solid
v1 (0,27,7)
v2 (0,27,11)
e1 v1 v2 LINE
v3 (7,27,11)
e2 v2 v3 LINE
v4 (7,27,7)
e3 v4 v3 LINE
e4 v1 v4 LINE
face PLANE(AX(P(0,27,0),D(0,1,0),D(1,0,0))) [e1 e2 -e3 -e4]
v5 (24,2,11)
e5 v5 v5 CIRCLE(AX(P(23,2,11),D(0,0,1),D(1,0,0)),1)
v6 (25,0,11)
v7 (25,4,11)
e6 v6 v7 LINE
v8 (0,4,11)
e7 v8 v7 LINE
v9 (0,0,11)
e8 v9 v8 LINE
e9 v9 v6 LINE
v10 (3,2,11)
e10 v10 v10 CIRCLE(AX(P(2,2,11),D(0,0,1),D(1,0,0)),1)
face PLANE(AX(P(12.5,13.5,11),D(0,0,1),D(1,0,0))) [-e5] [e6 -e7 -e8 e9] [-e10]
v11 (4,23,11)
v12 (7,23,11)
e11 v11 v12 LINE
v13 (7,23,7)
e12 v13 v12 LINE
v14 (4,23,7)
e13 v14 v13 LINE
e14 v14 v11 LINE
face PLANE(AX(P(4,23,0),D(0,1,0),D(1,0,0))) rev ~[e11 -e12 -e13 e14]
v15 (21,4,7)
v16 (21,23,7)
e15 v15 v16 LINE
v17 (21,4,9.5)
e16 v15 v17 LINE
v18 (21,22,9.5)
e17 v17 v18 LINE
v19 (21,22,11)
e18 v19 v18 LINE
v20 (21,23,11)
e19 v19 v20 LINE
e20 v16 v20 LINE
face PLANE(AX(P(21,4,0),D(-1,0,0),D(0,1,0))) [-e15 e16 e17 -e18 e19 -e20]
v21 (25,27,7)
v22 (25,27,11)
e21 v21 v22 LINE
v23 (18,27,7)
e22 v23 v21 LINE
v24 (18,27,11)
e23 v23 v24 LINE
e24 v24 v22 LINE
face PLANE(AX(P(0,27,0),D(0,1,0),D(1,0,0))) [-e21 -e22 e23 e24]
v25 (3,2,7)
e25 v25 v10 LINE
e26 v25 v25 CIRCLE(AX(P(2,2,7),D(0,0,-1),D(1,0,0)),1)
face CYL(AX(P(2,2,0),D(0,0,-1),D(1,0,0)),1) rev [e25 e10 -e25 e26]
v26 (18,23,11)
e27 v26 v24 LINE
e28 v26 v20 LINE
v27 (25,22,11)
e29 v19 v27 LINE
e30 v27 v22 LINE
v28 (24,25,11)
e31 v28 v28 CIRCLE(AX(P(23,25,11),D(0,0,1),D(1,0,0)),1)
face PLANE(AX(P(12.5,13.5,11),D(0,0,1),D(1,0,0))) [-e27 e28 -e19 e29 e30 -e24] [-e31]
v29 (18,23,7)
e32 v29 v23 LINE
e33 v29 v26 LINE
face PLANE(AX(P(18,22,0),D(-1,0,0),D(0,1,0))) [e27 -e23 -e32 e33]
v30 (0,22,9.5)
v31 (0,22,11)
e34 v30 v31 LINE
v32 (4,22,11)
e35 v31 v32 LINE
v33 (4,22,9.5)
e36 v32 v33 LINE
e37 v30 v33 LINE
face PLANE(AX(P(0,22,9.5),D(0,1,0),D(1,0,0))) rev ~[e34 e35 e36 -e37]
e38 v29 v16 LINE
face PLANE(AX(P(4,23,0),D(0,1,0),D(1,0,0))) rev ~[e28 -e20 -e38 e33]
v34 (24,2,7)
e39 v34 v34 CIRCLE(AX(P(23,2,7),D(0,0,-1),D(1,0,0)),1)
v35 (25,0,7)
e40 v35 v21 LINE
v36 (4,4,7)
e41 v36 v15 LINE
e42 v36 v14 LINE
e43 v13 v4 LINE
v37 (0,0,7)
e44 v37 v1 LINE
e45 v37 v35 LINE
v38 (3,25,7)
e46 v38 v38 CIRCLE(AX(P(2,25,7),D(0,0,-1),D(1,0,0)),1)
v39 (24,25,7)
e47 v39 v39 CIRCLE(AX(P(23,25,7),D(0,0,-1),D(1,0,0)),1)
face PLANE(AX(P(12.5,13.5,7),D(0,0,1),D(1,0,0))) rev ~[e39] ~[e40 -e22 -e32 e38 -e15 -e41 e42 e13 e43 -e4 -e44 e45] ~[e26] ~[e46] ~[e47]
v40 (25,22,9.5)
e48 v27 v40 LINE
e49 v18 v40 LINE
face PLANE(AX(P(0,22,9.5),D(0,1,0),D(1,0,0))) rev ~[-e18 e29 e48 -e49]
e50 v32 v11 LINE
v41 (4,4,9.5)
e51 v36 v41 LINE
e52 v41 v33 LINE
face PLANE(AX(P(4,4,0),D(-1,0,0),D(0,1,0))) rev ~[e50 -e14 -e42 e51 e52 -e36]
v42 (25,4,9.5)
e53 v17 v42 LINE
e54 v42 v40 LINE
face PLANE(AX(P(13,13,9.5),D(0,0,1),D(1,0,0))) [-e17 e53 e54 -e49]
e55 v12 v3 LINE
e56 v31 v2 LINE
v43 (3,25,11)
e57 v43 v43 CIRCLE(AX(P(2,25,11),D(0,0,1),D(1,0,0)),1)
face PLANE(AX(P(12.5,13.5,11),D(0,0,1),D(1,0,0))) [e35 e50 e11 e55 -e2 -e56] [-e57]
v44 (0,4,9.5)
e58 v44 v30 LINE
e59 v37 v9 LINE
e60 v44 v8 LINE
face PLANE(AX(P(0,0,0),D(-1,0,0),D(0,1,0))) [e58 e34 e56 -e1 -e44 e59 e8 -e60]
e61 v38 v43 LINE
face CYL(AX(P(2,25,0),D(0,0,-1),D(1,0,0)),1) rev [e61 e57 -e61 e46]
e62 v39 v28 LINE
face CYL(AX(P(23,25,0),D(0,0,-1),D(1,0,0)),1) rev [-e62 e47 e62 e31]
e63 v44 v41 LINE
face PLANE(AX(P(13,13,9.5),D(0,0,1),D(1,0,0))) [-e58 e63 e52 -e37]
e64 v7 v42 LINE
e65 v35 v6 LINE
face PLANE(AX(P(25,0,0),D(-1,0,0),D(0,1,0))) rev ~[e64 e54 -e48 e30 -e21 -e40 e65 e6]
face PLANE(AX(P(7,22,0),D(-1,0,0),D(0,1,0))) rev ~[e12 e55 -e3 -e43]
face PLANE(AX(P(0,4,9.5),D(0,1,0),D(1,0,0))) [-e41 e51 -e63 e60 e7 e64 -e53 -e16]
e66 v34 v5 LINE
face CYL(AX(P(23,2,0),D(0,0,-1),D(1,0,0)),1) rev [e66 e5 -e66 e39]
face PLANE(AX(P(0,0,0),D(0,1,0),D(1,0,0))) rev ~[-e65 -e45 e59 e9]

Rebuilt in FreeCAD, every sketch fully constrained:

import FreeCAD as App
import Part
import Sketcher

doc = App.newDocument("Part")
body = doc.addObject("PartDesign::Body", "Body")

# Sketch on XY plane
sketch1 = body.newObject("Sketcher::SketchObject", "Sketch")
sketch1.AttachmentSupport = (doc.getObject("XY_Plane"), [""])
sketch1.MapMode = "FlatFace"
sketch1.addGeometry([
    Part.LineSegment(App.Vector(0, 27, 0), App.Vector(0, 0, 0)),
    Part.LineSegment(App.Vector(0, 0, 0), App.Vector(25, 0, 0)),
    Part.LineSegment(App.Vector(25, 0, 0), App.Vector(25, 27, 0)),
    Part.LineSegment(App.Vector(25, 27, 0), App.Vector(0, 27, 0)),
], False)
sketch1.addConstraint([
    Sketcher.Constraint("Coincident", 0, 2, 1, 1),
    Sketcher.Constraint("Coincident", 1, 2, 2, 1),
    Sketcher.Constraint("Coincident", 2, 2, 3, 1),
    Sketcher.Constraint("Coincident", 3, 2, 0, 1),
    Sketcher.Constraint("Vertical", 0),
    Sketcher.Constraint("Horizontal", 1),
    Sketcher.Constraint("Vertical", 2),
    Sketcher.Constraint("Horizontal", 3),
    Sketcher.Constraint("Coincident", 0, 2, -1, 1),
    Sketcher.Constraint("DistanceX", 1, 1, 1, 2, 25.0),
    Sketcher.Constraint("DistanceY", 0, 2, 0, 1, 27.0),
])
pad1 = body.newObject("PartDesign::Pad", "Pad")
pad1.Profile = sketch1
pad1.Length = 7
body2 = doc.addObject("PartDesign::Body", "Body001")

# Sketch on XY plane
sketch2 = body2.newObject("Sketcher::SketchObject", "Sketch001")
sketch2.AttachmentSupport = (doc.getObject("XY_Plane001"), [""])
sketch2.MapMode = "FlatFace"
sketch2.AttachmentOffset = App.Placement(App.Vector(0, 0, 9.5), App.Rotation())
sketch2.addGeometry([
    Part.LineSegment(App.Vector(0, 22, 0), App.Vector(0, 4, 0)),
    Part.LineSegment(App.Vector(0, 4, 0), App.Vector(26, 4, 0)),
    Part.LineSegment(App.Vector(26, 4, 0), App.Vector(26, 22, 0)),
    Part.LineSegment(App.Vector(26, 22, 0), App.Vector(0, 22, 0)),
], False)
sketch2.addConstraint([
    Sketcher.Constraint("Coincident", 0, 2, 1, 1),
    Sketcher.Constraint("Coincident", 1, 2, 2, 1),
    Sketcher.Constraint("Coincident", 2, 2, 3, 1),
    Sketcher.Constraint("Coincident", 3, 2, 0, 1),
    Sketcher.Constraint("Vertical", 0),
    Sketcher.Constraint("Horizontal", 1),
    Sketcher.Constraint("Vertical", 2),
    Sketcher.Constraint("Horizontal", 3),
    Sketcher.Constraint("PointOnObject", 0, 2, -2),
    Sketcher.Constraint("DistanceX", 1, 1, 1, 2, 26.0),
    Sketcher.Constraint("DistanceY", 0, 2, 0, 1, 18.0),
    Sketcher.Constraint("DistanceY", -1, 1, 0, 2, 4.0),
])
pad2 = body2.newObject("PartDesign::Pad", "Pad001")
pad2.Profile = sketch2
pad2.Length = 1.5
body3 = doc.addObject("PartDesign::Body", "Body002")

# Sketch on XY plane
sketch3 = body3.newObject("Sketcher::SketchObject", "Sketch002")
sketch3.AttachmentSupport = (doc.getObject("XY_Plane002"), [""])
sketch3.MapMode = "FlatFace"
sketch3.addGeometry([
    Part.LineSegment(App.Vector(7, 27, 0), App.Vector(7, 22, 0)),
    Part.LineSegment(App.Vector(7, 22, 0), App.Vector(18, 22, 0)),
    Part.LineSegment(App.Vector(18, 22, 0), App.Vector(18, 27, 0)),
    Part.LineSegment(App.Vector(18, 27, 0), App.Vector(7, 27, 0)),
], False)
sketch3.addConstraint([
    Sketcher.Constraint("Coincident", 0, 2, 1, 1),
    Sketcher.Constraint("Coincident", 1, 2, 2, 1),
    Sketcher.Constraint("Coincident", 2, 2, 3, 1),
    Sketcher.Constraint("Coincident", 3, 2, 0, 1),
    Sketcher.Constraint("Vertical", 0),
    Sketcher.Constraint("Horizontal", 1),
    Sketcher.Constraint("Vertical", 2),
    Sketcher.Constraint("Horizontal", 3),
    Sketcher.Constraint("DistanceX", 1, 1, 1, 2, 11.0),
    Sketcher.Constraint("DistanceY", 0, 2, 0, 1, 5.0),
    Sketcher.Constraint("DistanceX", -1, 1, 0, 2, 7.0),
    Sketcher.Constraint("DistanceY", -1, 1, 0, 2, 22.0),
])
pad3 = body3.newObject("PartDesign::Pad", "Pad002")
pad3.Profile = sketch3
pad3.Length = 11
body4 = doc.addObject("PartDesign::Body", "Body003")

# Sketch on XY plane
sketch4 = body4.newObject("Sketcher::SketchObject", "Sketch003")
sketch4.AttachmentSupport = (doc.getObject("XY_Plane003"), [""])
sketch4.MapMode = "FlatFace"
sketch4.addGeometry(Part.Circle(App.Vector(2, 2, 0), App.Vector(0, 0, 1), 1), False)
sketch4.addConstraint([
    Sketcher.Constraint("Diameter", 0, 2.0),
    Sketcher.Constraint("DistanceX", -1, 1, 0, 3, 2.0),
    Sketcher.Constraint("DistanceY", -1, 1, 0, 3, 2.0),
])
pad4 = body4.newObject("PartDesign::Pad", "Pad003")
pad4.Profile = sketch4
pad4.Length = 11
body5 = doc.addObject("PartDesign::Body", "Body004")

# Sketch on XY plane
sketch5 = body5.newObject("Sketcher::SketchObject", "Sketch004")
sketch5.AttachmentSupport = (doc.getObject("XY_Plane004"), [""])
sketch5.MapMode = "FlatFace"
sketch5.addGeometry(Part.Circle(App.Vector(23, 2, 0), App.Vector(0, 0, 1), 1), False)
sketch5.addConstraint([
    Sketcher.Constraint("Diameter", 0, 2.0),
    Sketcher.Constraint("DistanceX", -1, 1, 0, 3, 23.0),
    Sketcher.Constraint("DistanceY", -1, 1, 0, 3, 2.0),
])
pad5 = body5.newObject("PartDesign::Pad", "Pad004")
pad5.Profile = sketch5
pad5.Length = 11
body6 = doc.addObject("PartDesign::Body", "Body005")

# Sketch on XY plane
sketch6 = body6.newObject("Sketcher::SketchObject", "Sketch005")
sketch6.AttachmentSupport = (doc.getObject("XY_Plane005"), [""])
sketch6.MapMode = "FlatFace"
sketch6.addGeometry(Part.Circle(App.Vector(23, 25, 0), App.Vector(0, 0, 1), 1), False)
sketch6.addConstraint([
    Sketcher.Constraint("Diameter", 0, 2.0),
    Sketcher.Constraint("DistanceX", -1, 1, 0, 3, 23.0),
    Sketcher.Constraint("DistanceY", -1, 1, 0, 3, 25.0),
])
pad6 = body6.newObject("PartDesign::Pad", "Pad005")
pad6.Profile = sketch6
pad6.Length = 11
body7 = doc.addObject("PartDesign::Body", "Body006")

# Sketch on XY plane
sketch7 = body7.newObject("Sketcher::SketchObject", "Sketch006")
sketch7.AttachmentSupport = (doc.getObject("XY_Plane006"), [""])
sketch7.MapMode = "FlatFace"
sketch7.addGeometry(Part.Circle(App.Vector(2, 25, 0), App.Vector(0, 0, 1), 1), False)
sketch7.addConstraint([
    Sketcher.Constraint("Diameter", 0, 2.0),
    Sketcher.Constraint("DistanceX", -1, 1, 0, 3, 2.0),
    Sketcher.Constraint("DistanceY", -1, 1, 0, 3, 25.0),
])
pad7 = body7.newObject("PartDesign::Pad", "Pad006")
pad7.Profile = sketch7
pad7.Length = 11
body8 = doc.addObject("PartDesign::Body", "Body007")

# Sketch on XY plane
sketch8 = body8.newObject("Sketcher::SketchObject", "Sketch007")
sketch8.AttachmentSupport = (doc.getObject("XY_Plane007"), [""])
sketch8.MapMode = "FlatFace"
sketch8.addGeometry([
    Part.LineSegment(App.Vector(4, 23, 0), App.Vector(4, 4, 0)),
    Part.LineSegment(App.Vector(4, 4, 0), App.Vector(21, 4, 0)),
    Part.LineSegment(App.Vector(21, 4, 0), App.Vector(21, 23, 0)),
    Part.LineSegment(App.Vector(21, 23, 0), App.Vector(4, 23, 0)),
], False)
sketch8.addConstraint([
    Sketcher.Constraint("Coincident", 0, 2, 1, 1),
    Sketcher.Constraint("Coincident", 1, 2, 2, 1),
    Sketcher.Constraint("Coincident", 2, 2, 3, 1),
    Sketcher.Constraint("Coincident", 3, 2, 0, 1),
    Sketcher.Constraint("Vertical", 0),
    Sketcher.Constraint("Horizontal", 1),
    Sketcher.Constraint("Vertical", 2),
    Sketcher.Constraint("Horizontal", 3),
    Sketcher.Constraint("DistanceX", 1, 1, 1, 2, 17.0),
    Sketcher.Constraint("DistanceY", 0, 2, 0, 1, 19.0),
    Sketcher.Constraint("DistanceX", -1, 1, 0, 2, 4.0),
    Sketcher.Constraint("DistanceY", -1, 1, 0, 2, 4.0),
])
pad8 = body8.newObject("PartDesign::Pad", "Pad007")
pad8.Profile = sketch8
pad8.Length = 11
body9 = doc.addObject("PartDesign::Body", "Body008")

# Sketch on XY plane
sketch9 = body9.newObject("Sketcher::SketchObject", "Sketch008")
sketch9.AttachmentSupport = (doc.getObject("XY_Plane008"), [""])
sketch9.MapMode = "FlatFace"
sketch9.addGeometry([
    Part.LineSegment(App.Vector(0, 27, 0), App.Vector(0, 0, 0)),
    Part.LineSegment(App.Vector(0, 0, 0), App.Vector(25, 0, 0)),
    Part.LineSegment(App.Vector(25, 0, 0), App.Vector(25, 27, 0)),
    Part.LineSegment(App.Vector(25, 27, 0), App.Vector(0, 27, 0)),
], False)
sketch9.addConstraint([
    Sketcher.Constraint("Coincident", 0, 2, 1, 1),
    Sketcher.Constraint("Coincident", 1, 2, 2, 1),
    Sketcher.Constraint("Coincident", 2, 2, 3, 1),
    Sketcher.Constraint("Coincident", 3, 2, 0, 1),
    Sketcher.Constraint("Vertical", 0),
    Sketcher.Constraint("Horizontal", 1),
    Sketcher.Constraint("Vertical", 2),
    Sketcher.Constraint("Horizontal", 3),
    Sketcher.Constraint("Coincident", 0, 2, -1, 1),
    Sketcher.Constraint("DistanceX", 1, 1, 1, 2, 25.0),
    Sketcher.Constraint("DistanceY", 0, 2, 0, 1, 27.0),
])
pad9 = body9.newObject("PartDesign::Pad", "Pad008")
pad9.Profile = sketch9
pad9.Length = 11
doc.recompute()

boolean = body9.newObject("PartDesign::Boolean", "Boolean")
boolean.Type = "Cut"
boolean.addObjects([body8])
doc.recompute()

boolean2 = body9.newObject("PartDesign::Boolean", "Boolean001")
boolean2.Type = "Cut"
boolean2.addObjects([body7])
doc.recompute()

boolean3 = body9.newObject("PartDesign::Boolean", "Boolean002")
boolean3.Type = "Cut"
boolean3.addObjects([body6])
doc.recompute()

boolean4 = body9.newObject("PartDesign::Boolean", "Boolean003")
boolean4.Type = "Cut"
boolean4.addObjects([body5])
doc.recompute()

boolean5 = body9.newObject("PartDesign::Boolean", "Boolean004")
boolean5.Type = "Cut"
boolean5.addObjects([body4])
doc.recompute()

boolean6 = body9.newObject("PartDesign::Boolean", "Boolean005")
boolean6.Type = "Cut"
boolean6.addObjects([body3])
doc.recompute()

boolean7 = body9.newObject("PartDesign::Boolean", "Boolean006")
boolean7.Type = "Cut"
boolean7.addObjects([body2])
doc.recompute()

boolean8 = body9.newObject("PartDesign::Boolean", "Boolean007")
boolean8.Type = "Cut"
boolean8.addObjects([body])

doc.recompute()
